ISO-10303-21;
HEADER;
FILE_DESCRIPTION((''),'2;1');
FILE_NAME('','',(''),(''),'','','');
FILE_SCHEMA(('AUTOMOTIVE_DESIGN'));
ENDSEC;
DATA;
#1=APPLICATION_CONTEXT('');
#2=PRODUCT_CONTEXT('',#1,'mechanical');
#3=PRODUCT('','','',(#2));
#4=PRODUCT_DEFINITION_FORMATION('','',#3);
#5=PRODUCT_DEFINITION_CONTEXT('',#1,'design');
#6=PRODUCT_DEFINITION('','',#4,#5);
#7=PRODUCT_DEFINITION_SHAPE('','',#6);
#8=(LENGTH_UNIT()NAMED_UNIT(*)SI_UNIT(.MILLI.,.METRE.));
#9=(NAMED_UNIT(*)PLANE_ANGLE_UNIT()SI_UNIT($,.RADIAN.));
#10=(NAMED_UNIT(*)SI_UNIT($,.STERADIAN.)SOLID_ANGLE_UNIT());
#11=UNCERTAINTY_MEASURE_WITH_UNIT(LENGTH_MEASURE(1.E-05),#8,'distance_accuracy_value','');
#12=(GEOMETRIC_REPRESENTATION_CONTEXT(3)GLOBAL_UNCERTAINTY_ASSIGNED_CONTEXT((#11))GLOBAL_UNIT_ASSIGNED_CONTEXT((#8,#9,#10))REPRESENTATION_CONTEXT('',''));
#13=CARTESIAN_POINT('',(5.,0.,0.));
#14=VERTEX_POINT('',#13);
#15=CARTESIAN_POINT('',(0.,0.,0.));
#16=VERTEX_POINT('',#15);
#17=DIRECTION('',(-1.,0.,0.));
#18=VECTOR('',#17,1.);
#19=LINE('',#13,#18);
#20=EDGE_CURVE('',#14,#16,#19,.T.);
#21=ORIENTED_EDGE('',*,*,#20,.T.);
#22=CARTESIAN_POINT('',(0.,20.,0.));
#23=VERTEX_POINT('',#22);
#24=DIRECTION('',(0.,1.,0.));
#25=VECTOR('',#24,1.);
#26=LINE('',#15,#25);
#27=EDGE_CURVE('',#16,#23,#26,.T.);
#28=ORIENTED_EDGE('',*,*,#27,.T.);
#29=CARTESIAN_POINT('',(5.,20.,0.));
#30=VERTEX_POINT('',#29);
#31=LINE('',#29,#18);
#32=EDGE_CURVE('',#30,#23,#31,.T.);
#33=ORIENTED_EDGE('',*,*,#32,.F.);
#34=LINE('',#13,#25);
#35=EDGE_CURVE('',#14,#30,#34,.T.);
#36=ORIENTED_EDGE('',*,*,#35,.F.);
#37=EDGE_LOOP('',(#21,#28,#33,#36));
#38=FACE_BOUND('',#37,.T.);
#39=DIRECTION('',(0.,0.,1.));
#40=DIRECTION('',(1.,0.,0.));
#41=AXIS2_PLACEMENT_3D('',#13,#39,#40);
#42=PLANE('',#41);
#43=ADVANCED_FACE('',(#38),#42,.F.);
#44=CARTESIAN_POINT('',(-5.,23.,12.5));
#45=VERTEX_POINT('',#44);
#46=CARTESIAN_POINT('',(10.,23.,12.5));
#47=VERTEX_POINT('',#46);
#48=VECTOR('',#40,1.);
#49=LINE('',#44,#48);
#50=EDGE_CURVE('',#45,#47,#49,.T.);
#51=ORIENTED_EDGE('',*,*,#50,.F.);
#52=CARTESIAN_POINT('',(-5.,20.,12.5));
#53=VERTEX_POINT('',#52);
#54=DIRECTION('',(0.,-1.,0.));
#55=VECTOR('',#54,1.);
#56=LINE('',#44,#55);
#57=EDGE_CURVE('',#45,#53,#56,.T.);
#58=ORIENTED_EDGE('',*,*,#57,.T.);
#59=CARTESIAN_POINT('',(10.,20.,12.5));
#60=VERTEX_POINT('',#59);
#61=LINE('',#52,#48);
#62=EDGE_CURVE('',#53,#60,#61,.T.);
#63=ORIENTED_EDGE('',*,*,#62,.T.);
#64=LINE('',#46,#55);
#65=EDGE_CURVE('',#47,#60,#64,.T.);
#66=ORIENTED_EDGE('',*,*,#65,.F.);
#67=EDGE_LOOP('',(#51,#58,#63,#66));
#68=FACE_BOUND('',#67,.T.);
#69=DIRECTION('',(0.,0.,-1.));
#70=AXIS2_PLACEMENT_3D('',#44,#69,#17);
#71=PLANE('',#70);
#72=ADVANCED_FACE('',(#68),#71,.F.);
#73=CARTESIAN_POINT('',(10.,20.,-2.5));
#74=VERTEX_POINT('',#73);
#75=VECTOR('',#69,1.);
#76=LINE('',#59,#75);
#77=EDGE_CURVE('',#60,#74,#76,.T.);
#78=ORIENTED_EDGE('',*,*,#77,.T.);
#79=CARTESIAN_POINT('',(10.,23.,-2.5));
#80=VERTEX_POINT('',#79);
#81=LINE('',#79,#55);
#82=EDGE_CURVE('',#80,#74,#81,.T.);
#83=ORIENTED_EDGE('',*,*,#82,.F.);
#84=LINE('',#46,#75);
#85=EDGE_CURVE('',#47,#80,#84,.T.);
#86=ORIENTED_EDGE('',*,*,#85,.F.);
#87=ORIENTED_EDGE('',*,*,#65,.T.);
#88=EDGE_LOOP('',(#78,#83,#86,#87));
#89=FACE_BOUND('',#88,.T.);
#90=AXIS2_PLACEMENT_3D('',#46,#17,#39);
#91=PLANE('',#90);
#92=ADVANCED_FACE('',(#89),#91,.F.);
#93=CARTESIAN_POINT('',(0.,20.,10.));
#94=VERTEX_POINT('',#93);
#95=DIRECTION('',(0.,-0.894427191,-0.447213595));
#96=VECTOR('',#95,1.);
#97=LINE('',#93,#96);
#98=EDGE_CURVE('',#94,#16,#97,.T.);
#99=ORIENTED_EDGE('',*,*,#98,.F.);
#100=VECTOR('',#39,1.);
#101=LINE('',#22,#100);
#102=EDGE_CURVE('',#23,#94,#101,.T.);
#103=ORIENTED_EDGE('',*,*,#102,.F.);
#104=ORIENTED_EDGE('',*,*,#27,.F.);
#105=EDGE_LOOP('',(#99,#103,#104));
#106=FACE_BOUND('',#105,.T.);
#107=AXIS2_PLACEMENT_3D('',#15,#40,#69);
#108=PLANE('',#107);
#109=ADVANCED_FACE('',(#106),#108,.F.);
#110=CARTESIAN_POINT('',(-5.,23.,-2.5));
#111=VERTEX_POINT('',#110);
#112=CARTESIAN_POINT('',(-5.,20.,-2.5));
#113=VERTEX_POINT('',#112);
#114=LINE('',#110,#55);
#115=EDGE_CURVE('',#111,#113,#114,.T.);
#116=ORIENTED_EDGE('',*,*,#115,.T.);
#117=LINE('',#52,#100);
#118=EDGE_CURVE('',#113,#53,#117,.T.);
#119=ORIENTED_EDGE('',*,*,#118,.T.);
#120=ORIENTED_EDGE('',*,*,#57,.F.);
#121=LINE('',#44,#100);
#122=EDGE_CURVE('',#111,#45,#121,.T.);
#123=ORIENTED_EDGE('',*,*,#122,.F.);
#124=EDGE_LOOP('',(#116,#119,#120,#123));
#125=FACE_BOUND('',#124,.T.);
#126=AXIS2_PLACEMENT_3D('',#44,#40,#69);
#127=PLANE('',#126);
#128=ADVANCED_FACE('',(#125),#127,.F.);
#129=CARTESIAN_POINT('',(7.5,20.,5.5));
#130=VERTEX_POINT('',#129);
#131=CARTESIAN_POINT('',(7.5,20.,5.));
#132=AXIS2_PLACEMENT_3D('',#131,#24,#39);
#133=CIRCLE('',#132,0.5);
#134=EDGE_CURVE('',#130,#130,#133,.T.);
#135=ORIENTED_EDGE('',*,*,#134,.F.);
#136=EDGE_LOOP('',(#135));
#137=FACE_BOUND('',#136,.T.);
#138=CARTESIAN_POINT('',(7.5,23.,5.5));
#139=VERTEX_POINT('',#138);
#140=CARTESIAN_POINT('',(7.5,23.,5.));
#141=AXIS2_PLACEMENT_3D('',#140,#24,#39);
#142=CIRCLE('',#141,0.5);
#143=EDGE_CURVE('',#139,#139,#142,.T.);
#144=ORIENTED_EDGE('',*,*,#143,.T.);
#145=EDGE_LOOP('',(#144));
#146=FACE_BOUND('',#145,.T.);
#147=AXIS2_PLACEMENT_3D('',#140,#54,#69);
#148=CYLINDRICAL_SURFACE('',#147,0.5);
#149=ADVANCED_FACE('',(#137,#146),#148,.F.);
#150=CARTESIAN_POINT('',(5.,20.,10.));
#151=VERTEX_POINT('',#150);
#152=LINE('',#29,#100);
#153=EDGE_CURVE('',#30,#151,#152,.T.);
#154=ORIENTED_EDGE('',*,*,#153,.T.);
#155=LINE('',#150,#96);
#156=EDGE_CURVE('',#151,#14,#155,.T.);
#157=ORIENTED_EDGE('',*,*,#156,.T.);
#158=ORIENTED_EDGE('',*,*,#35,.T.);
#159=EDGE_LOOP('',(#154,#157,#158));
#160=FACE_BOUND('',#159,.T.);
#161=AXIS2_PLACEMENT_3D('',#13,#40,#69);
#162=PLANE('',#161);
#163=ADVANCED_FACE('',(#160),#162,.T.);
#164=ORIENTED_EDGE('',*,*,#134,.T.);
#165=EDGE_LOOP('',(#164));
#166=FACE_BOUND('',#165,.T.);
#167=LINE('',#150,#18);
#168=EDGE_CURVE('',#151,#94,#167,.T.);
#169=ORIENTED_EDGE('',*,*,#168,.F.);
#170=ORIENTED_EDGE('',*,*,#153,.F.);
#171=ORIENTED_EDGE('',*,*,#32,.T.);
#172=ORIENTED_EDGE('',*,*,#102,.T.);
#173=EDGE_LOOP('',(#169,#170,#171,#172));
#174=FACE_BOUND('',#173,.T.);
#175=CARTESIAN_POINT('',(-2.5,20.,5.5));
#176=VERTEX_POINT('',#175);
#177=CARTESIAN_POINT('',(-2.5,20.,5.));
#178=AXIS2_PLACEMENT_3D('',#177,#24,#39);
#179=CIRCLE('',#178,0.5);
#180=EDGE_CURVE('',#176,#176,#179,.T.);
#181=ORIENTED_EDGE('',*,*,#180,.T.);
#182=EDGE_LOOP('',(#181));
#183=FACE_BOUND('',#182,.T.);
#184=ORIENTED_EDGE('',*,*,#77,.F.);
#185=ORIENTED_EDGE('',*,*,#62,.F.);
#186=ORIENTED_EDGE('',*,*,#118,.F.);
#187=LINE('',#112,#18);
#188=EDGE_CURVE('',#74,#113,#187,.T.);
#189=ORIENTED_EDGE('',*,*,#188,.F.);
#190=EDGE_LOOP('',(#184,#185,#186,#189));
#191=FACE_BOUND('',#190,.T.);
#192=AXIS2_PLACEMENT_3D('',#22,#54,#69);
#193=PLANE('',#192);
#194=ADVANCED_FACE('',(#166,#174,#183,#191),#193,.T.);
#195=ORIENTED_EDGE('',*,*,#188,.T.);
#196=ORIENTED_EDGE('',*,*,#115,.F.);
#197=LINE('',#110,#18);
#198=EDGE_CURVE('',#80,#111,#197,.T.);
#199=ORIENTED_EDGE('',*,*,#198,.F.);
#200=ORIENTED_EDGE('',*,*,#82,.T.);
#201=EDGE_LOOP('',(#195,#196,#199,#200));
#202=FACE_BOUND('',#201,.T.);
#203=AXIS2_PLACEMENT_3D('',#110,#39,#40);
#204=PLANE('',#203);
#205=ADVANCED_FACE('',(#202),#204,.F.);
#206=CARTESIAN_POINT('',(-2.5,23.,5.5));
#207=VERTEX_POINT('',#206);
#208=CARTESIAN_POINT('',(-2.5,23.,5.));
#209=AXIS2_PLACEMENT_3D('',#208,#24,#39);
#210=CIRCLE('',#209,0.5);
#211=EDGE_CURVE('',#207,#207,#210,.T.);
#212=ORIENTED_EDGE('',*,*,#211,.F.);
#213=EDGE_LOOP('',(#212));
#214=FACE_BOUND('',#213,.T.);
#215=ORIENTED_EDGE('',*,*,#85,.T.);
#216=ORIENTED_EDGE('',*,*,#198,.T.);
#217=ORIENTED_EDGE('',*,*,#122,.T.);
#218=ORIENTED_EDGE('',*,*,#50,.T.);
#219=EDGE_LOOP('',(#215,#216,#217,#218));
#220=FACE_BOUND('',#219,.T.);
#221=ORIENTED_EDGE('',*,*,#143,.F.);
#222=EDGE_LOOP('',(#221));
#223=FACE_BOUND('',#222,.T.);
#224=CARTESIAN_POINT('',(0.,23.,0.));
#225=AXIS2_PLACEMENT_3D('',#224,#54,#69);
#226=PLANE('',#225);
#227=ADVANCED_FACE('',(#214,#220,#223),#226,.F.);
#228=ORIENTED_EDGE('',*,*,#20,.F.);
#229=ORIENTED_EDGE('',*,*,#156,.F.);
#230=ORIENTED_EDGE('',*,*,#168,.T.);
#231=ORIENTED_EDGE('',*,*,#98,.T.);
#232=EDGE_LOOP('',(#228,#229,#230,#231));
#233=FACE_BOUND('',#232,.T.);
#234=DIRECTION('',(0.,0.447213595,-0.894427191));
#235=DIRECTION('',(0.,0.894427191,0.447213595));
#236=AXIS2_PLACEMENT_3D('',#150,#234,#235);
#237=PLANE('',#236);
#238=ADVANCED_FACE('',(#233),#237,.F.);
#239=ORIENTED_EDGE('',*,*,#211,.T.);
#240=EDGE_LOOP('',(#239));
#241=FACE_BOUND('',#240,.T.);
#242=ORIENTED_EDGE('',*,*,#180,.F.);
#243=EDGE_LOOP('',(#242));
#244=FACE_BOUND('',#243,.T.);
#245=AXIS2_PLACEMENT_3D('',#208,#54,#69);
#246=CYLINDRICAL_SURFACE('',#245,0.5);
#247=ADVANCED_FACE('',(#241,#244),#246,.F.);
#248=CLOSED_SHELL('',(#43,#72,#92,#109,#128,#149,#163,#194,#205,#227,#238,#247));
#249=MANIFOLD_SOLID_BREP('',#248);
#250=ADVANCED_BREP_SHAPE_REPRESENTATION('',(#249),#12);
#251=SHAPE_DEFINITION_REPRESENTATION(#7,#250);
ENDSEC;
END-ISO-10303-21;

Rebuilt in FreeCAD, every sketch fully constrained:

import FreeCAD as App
import Part
import Sketcher

doc = App.newDocument("Part")
params = doc.addObject("Spreadsheet::Sheet", "Params")
for row, (alias, value) in enumerate([
    ("sketch1_width", "20 mm"),
    ("sketch1_height", "10 mm"),
    ("pad1_length", "5 mm"),
    ("sketch2_diameter", "1 mm"),
    ("sketch2_width", "15 mm"),
    ("pad2_length", "3 mm"),
], start=1):
    params.set(f"A{row}", alias)
    params.set(f"B{row}", "=" + value)
    params.setAlias(f"B{row}", alias)

body = doc.addObject("PartDesign::Body", "Body")

sketch1 = doc.addObject("Sketcher::SketchObject", "Sketch")
body.addObject(sketch1)
sketch1.AttachmentSupport = (doc.YZ_Plane, [""])
sketch1.MapMode = "FlatFace"
sketch1.addGeometry([
    Part.LineSegment(App.Vector(20, 10, 0), App.Vector(0, 0, 0)),
    Part.LineSegment(App.Vector(0, 0, 0), App.Vector(20, 0, 0)),
    Part.LineSegment(App.Vector(20, 0, 0), App.Vector(20, 10, 0)),
], False)
sketch1.addConstraint([
    Sketcher.Constraint("Coincident", 0, 2, 1, 1),
    Sketcher.Constraint("Coincident", 1, 2, 2, 1),
    Sketcher.Constraint("Coincident", 2, 2, 0, 1),
    Sketcher.Constraint("Horizontal", 1),
    Sketcher.Constraint("Vertical", 2),
    Sketcher.Constraint("Coincident", 0, 2, -1, 1),
    Sketcher.Constraint("DistanceX", 1, 1, 1, 2, 20.0),
    Sketcher.Constraint("DistanceY", 2, 1, 2, 2, 10.0),
])
sketch1.setExpression("Constraints[6]", "Params.sketch1_width")
sketch1.setExpression("Constraints[7]", "Params.sketch1_height")
pad1 = doc.addObject("PartDesign::Pad", "Pad")
body.addObject(pad1)
pad1.Profile = sketch1
pad1.setExpression("Length", "Params.pad1_length")

sketch2 = doc.addObject("Sketcher::SketchObject", "Sketch001")
body.addObject(sketch2)
sketch2.AttachmentSupport = (doc.XZ_Plane, [""])
sketch2.MapMode = "FlatFace"
sketch2.AttachmentOffset = App.Placement(App.Vector(0, 0, -20), App.Rotation())
sketch2.addGeometry([
    Part.LineSegment(App.Vector(-5, -2.5, 0), App.Vector(-5, 12.5, 0)),
    Part.LineSegment(App.Vector(-5, 12.5, 0), App.Vector(10, 12.5, 0)),
    Part.LineSegment(App.Vector(10, 12.5, 0), App.Vector(10, -2.5, 0)),
    Part.LineSegment(App.Vector(10, -2.5, 0), App.Vector(-5, -2.5, 0)),
    Part.Circle(App.Vector(-2.5, 5, 0), App.Vector(0, 0, 1), 0.5),
    Part.Circle(App.Vector(7.5, 5, 0), App.Vector(0, 0, 1), 0.5),
], False)
sketch2.addConstraint([
    Sketcher.Constraint("Coincident", 0, 2, 1, 1),
    Sketcher.Constraint("Coincident", 1, 2, 2, 1),
    Sketcher.Constraint("Coincident", 2, 2, 3, 1),
    Sketcher.Constraint("Coincident", 3, 2, 0, 1),
    Sketcher.Constraint("Vertical", 0),
    Sketcher.Constraint("Horizontal", 1),
    Sketcher.Constraint("Vertical", 2),
    Sketcher.Constraint("Horizontal", 3),
    Sketcher.Constraint("Equal", 4, 5),
    Sketcher.Constraint("Horizontal", 4, 3, 5, 3),
    Sketcher.Constraint("Equal", 3, 0),
    Sketcher.Constraint("Diameter", 4, 1.0),
    Sketcher.Constraint("DistanceX", 1, 1, 1, 2, 15.0),
    Sketcher.Constraint("DistanceY", -1, 1, 4, 3, 5.0),
    Sketcher.Constraint("DistanceX", 0, 2, -1, 1, 5.0),
    Sketcher.Constraint("DistanceX", 4, 3, 5, 3, 10.0),
    Sketcher.Constraint("DistanceX", 4, 3, -1, 1, 2.5),
    Sketcher.Constraint("DistanceY", -1, 1, 0, 2, 12.5),
])
sketch2.setExpression("Constraints[11]", "Params.sketch2_diameter")
sketch2.setExpression("Constraints[12]", "Params.sketch2_width")
pad2 = doc.addObject("PartDesign::Pad", "Pad001")
body.addObject(pad2)
pad2.Profile = sketch2
pad2.setExpression("Length", "Params.pad2_length")
pad2.Reversed = True

doc.recompute()
